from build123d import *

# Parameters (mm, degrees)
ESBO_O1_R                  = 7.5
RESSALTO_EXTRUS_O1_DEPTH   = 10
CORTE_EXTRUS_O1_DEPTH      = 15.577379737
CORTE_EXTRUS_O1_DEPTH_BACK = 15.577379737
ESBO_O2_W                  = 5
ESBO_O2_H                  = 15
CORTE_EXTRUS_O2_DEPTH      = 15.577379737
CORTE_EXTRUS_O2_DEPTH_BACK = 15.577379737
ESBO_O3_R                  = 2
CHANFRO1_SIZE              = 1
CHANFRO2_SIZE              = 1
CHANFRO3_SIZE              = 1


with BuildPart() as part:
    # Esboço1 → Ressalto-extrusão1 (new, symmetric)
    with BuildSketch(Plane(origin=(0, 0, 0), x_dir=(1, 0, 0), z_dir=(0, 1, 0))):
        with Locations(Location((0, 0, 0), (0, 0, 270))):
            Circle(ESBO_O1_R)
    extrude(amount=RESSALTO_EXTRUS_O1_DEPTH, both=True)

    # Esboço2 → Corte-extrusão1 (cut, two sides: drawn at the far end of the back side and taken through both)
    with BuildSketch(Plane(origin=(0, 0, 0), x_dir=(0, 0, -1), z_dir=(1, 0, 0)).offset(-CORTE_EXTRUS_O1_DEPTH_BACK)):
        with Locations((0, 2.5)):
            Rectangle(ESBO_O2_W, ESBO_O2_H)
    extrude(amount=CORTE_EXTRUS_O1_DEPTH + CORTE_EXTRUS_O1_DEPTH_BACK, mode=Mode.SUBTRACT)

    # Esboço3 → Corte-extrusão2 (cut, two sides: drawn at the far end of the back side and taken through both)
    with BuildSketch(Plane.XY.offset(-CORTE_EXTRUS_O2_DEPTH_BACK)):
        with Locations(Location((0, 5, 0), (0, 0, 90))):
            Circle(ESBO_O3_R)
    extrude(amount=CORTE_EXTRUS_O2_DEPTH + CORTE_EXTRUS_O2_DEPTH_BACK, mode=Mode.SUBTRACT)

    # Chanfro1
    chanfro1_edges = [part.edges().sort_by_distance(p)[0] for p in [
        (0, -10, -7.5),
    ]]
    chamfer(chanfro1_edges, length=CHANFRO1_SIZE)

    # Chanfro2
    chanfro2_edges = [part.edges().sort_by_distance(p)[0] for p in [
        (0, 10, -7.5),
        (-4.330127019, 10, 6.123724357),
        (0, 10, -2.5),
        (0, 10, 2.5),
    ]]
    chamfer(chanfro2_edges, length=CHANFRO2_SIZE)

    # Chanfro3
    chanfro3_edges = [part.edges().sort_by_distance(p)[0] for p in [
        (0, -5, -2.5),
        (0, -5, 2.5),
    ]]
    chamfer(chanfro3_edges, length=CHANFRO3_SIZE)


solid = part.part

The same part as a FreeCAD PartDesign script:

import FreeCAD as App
import Part
import Sketcher

V = App.Vector


def edges_at(feature, points):
    """Names of the edges that pass closest to the given points."""
    edges = feature.Shape.Edges
    near = lambda p: min(range(len(edges)), key=lambda i: edges[i].distToShape(Part.Vertex(*p))[0])
    return sorted({f"Edge{near(p) + 1}" for p in points})


def add_polygon(sketch, points):
    """Adds a closed chain of lines whose ends are joined by coincident constraints."""
    first, n = sketch.GeometryCount, len(points)
    for a, b in zip(points, points[1:] + points[:1]):
        sketch.addGeometry(Part.LineSegment(App.Vector(*a, 0), App.Vector(*b, 0)), False)
    for i in range(n):
        sketch.addConstraint(Sketcher.Constraint("Coincident", first + i, 2, first + (i + 1) % n, 1))

doc = App.newDocument("Part")
body = doc.addObject("PartDesign::Body", "Body")

sketch1 = body.newObject("Sketcher::SketchObject", "Sketch")
sketch1.AttachmentSupport = (doc.getObject("XZ_Plane"), [""])
sketch1.MapMode = "FlatFace"
sketch1.addGeometry(Part.Circle(V(0, 0, 0), V(0, 0, 1), 8), False)
sketch1.addConstraint(Sketcher.Constraint("Coincident", 0, 3, -1, 1))
sketch1.addConstraint(Sketcher.Constraint("Diameter", 0, 15.0))
pad1 = body.newObject("PartDesign::Pad", "Pad")
pad1.Profile = sketch1
pad1.Length = 20
pad1.Midplane = True

sketch2 = body.newObject("Sketcher::SketchObject", "Sketch001")
sketch2.AttachmentSupport = (doc.getObject("YZ_Plane"), [""])
sketch2.MapMode = "FlatFace"
add_polygon(sketch2, [(10, 2), (-5, 2), (-5, -2), (10, -2)])
sketch2.addConstraint(Sketcher.Constraint("Horizontal", 0))
sketch2.addConstraint(Sketcher.Constraint("Vertical", 1))
sketch2.addConstraint(Sketcher.Constraint("Horizontal", 2))
sketch2.addConstraint(Sketcher.Constraint("Vertical", 3))
sketch2.addConstraint(Sketcher.Constraint("DistanceX", 0, 2, 0, 1, 15.0))
sketch2.addConstraint(Sketcher.Constraint("DistanceY", 1, 2, 1, 1, 5.0))
sketch2.addConstraint(Sketcher.Constraint("DistanceX", 0, 2, -1, 1, 5.0))
sketch2.addConstraint(Sketcher.Constraint("DistanceY", -1, 1, 0, 2, 2.5))
pocket1 = body.newObject("PartDesign::Pocket", "Pocket")
pocket1.Profile = sketch2
pocket1.Type = "ThroughAll"
pocket1.Midplane = True

sketch3 = body.newObject("Sketcher::SketchObject", "Sketch002")
sketch3.AttachmentSupport = (doc.getObject("XY_Plane"), [""])
sketch3.MapMode = "FlatFace"
sketch3.addGeometry(Part.Circle(V(0, 5, 0), V(0, 0, 1), 2), False)
sketch3.addConstraint(Sketcher.Constraint("PointOnObject", 0, 3, -2))
sketch3.addConstraint(Sketcher.Constraint("Diameter", 0, 4.0))
sketch3.addConstraint(Sketcher.Constraint("DistanceY", -1, 1, 0, 3, 5.0))
pocket2 = body.newObject("PartDesign::Pocket", "Pocket001")
pocket2.Profile = sketch3
pocket2.Type = "ThroughAll"
pocket2.Midplane = True
doc.recompute()

chamfer = body.newObject("PartDesign::Chamfer", "Chamfer")
chamfer.Base = (pocket2, edges_at(pocket2, [(0, -10, -7.5)]))
chamfer.Size = 1
doc.recompute()

chamfer2 = body.newObject("PartDesign::Chamfer", "Chamfer001")
chamfer2.Base = (chamfer, edges_at(chamfer, [
    (0, 10, -7.5),
    (-4.33, 10, 6.124),
    (0, 10, -2.5),
    (0, 10, 2.5),
]))
chamfer2.Size = 1
doc.recompute()

chamfer3 = body.newObject("PartDesign::Chamfer", "Chamfer002")
chamfer3.Base = (chamfer2, edges_at(chamfer2, [(0, -5, -2.5), (0, -5, 2.5)]))
chamfer3.Size = 1

doc.recompute()
